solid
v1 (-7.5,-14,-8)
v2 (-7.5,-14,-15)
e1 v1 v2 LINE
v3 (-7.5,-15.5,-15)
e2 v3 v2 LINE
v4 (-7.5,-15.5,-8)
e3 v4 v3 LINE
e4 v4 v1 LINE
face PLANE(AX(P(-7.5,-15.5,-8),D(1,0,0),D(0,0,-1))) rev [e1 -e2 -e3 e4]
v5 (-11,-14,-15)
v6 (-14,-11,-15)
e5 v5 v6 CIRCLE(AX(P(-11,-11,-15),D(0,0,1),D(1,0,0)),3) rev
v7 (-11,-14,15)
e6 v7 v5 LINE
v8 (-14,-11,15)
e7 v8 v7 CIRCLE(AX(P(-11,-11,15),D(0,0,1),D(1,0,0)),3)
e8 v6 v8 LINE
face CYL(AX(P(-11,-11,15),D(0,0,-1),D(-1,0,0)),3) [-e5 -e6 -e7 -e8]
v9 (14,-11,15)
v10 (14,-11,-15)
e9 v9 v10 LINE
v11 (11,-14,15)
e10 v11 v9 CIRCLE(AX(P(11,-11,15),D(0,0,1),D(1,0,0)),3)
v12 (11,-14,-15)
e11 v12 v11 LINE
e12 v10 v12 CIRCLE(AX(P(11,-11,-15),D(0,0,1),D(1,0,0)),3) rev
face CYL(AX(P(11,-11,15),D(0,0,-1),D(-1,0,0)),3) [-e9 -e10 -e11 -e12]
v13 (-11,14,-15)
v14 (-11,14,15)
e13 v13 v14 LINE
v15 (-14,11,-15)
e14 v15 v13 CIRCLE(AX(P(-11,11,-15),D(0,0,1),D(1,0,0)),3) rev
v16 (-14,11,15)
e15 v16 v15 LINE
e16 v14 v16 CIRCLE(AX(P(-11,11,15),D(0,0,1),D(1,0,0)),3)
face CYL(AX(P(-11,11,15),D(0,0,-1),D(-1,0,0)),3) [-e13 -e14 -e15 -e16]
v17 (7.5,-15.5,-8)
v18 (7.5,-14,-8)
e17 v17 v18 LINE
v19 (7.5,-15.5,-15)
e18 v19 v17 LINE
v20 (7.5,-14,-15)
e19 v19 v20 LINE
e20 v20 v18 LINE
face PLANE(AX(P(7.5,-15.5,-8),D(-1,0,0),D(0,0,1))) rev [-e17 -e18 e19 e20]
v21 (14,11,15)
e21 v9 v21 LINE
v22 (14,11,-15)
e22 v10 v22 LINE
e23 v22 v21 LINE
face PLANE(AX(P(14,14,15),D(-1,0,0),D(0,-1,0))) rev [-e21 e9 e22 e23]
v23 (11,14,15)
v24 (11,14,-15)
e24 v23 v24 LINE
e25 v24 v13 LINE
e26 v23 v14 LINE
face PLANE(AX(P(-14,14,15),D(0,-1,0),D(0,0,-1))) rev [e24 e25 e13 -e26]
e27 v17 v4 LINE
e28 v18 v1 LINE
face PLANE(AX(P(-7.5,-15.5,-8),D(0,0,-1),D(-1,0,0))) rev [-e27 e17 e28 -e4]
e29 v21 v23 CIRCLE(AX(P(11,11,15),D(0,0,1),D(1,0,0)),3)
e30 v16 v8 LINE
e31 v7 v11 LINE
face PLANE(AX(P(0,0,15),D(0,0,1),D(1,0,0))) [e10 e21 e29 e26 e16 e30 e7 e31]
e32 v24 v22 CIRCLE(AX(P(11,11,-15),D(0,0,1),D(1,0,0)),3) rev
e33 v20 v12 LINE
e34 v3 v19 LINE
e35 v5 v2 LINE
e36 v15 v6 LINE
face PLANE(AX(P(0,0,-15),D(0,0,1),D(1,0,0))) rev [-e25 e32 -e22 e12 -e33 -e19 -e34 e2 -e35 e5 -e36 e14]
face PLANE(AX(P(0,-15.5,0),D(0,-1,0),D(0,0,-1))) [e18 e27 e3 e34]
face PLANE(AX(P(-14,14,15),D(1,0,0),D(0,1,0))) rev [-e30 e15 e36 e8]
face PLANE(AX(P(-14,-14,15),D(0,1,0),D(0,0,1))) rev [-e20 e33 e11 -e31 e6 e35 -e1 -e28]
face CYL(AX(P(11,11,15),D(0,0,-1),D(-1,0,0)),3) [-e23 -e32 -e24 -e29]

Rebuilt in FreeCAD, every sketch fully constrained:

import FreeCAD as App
import Part
import Sketcher

V = App.Vector


def edges_at(feature, points):
    """Names of the edges that pass closest to the given points."""
    edges = feature.Shape.Edges
    near = lambda p: min(range(len(edges)), key=lambda i: edges[i].distToShape(Part.Vertex(*p))[0])
    return sorted({f"Edge{near(p) + 1}" for p in points})


def add_polygon(sketch, points):
    """Adds a closed chain of lines whose ends are joined by coincident constraints."""
    first, n = sketch.GeometryCount, len(points)
    for a, b in zip(points, points[1:] + points[:1]):
        sketch.addGeometry(Part.LineSegment(App.Vector(*a, 0), App.Vector(*b, 0)), False)
    for i in range(n):
        sketch.addConstraint(Sketcher.Constraint("Coincident", first + i, 2, first + (i + 1) % n, 1))

doc = App.newDocument("Part")
body = doc.addObject("PartDesign::Body", "Body")

# Sketch on XY plane
sketch1 = doc.addObject("Sketcher::SketchObject", "Sketch")
body.addObject(sketch1)
sketch1.AttachmentSupport = (doc.XY_Plane, [""])
sketch1.MapMode = "FlatFace"
add_polygon(sketch1, [(-14, 14), (-14, -14), (14, -14), (14, 14)])  # lines 0-3
sketch1.addConstraint([
    Sketcher.Constraint("Vertical", 0),
    Sketcher.Constraint("Horizontal", 1),
    Sketcher.Constraint("Vertical", 2),
    Sketcher.Constraint("Horizontal", 3),
    Sketcher.Constraint("Symmetric", 0, 2, 2, 2, -1, 1),
    Sketcher.Constraint("Equal", 3, 0),
    Sketcher.Constraint("DistanceX", 1, 1, 1, 2, 28.0),
])
pad1 = doc.addObject("PartDesign::Pad", "Pad")
body.addObject(pad1)
pad1.Profile = sketch1
pad1.Length = 30
pad1.Midplane = True

# Sketch on XZ plane
sketch2 = doc.addObject("Sketcher::SketchObject", "Sketch001")
body.addObject(sketch2)
sketch2.AttachmentSupport = (doc.XZ_Plane, [""])
sketch2.MapMode = "FlatFace"
sketch2.AttachmentOffset = App.Placement(V(0, 0, 14), App.Rotation())
add_polygon(sketch2, [(-8, -8), (-8, -15), (8, -15), (8, -8)])  # lines 0-3
sketch2.addConstraint([
    Sketcher.Constraint("Vertical", 0),
    Sketcher.Constraint("Horizontal", 1),
    Sketcher.Constraint("Vertical", 2),
    Sketcher.Constraint("Horizontal", 3),
    Sketcher.Constraint("DistanceX", 1, 1, 1, 2, 15.0),
    Sketcher.Constraint("DistanceY", 0, 2, 0, 1, 7.0),
    Sketcher.Constraint("DistanceY", 0, 2, -1, 1, 15.0),
    Sketcher.Constraint("DistanceX", 0, 2, -1, 1, 7.5),
])
pad2 = doc.addObject("PartDesign::Pad", "Pad001")
body.addObject(pad2)
pad2.Profile = sketch2
pad2.Length = 3
pad2.Midplane = True
doc.recompute()

fillet = doc.addObject("PartDesign::Fillet", "Fillet")
body.addObject(fillet)
fillet.Base = (pad2, edges_at(pad2, [
    (14, -14, 0),
    (-14, -14, 0),
    (-14, 14, 0),
    (14, 14, 0),
]))
fillet.Radius = 3

doc.recompute()
